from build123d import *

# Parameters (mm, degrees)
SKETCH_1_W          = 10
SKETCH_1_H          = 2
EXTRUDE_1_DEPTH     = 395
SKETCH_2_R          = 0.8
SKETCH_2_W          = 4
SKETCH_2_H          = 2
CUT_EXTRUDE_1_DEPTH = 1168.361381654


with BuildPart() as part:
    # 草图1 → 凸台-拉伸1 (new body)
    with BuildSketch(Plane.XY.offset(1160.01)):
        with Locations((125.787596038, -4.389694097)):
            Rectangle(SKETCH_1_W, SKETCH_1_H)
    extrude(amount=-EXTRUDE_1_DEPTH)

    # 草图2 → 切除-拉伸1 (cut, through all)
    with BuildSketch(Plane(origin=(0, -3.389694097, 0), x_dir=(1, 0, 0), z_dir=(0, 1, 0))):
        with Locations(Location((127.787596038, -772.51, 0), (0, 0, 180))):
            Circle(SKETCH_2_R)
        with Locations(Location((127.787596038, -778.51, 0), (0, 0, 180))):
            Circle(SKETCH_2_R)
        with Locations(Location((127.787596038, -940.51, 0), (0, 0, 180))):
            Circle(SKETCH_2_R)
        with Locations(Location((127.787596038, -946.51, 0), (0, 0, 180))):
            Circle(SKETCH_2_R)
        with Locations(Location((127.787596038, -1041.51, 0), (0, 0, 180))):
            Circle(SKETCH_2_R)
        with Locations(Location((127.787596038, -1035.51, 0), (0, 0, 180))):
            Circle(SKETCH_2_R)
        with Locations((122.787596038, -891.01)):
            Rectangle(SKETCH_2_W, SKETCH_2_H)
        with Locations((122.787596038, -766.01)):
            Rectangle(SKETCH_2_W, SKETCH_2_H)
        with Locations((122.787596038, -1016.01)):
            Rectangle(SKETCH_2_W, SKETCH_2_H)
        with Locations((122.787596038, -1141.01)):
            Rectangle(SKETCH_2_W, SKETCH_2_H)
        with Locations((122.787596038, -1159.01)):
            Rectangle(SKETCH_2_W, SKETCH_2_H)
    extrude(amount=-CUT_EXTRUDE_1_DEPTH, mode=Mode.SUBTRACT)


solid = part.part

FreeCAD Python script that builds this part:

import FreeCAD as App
import Part
import Sketcher
Q = App.Units.Quantity


def add_polygon(sketch, points):
    """Adds a closed chain of lines whose ends are joined by coincident constraints."""
    first, n = sketch.GeometryCount, len(points)
    for a, b in zip(points, points[1:] + points[:1]):
        sketch.addGeometry(Part.LineSegment(App.Vector(*a, 0), App.Vector(*b, 0)), False)
    for i in range(n):
        sketch.addConstraint(Sketcher.Constraint("Coincident", first + i, 2, first + (i + 1) % n, 1))

doc = App.newDocument("Part")
body = doc.addObject("PartDesign::Body", "Body")

sketch1 = doc.addObject("Sketcher::SketchObject", "Sketch")
body.addObject(sketch1)
sketch1.AttachmentSupport = (doc.XY_Plane, [""])
sketch1.MapMode = "FlatFace"
sketch1.AttachmentOffset = App.Placement(App.Vector(0, 0, 1160.01), App.Rotation())
add_polygon(sketch1, [(120.8, -3.4), (120.8, -5.4), (130.8, -5.4), (130.8, -3.4)])
sketch1.addConstraint(Sketcher.Constraint("Vertical", 0))
sketch1.addConstraint(Sketcher.Constraint("Horizontal", 1))
sketch1.addConstraint(Sketcher.Constraint("Vertical", 2))
sketch1.addConstraint(Sketcher.Constraint("Horizontal", 3))
sketch1.addConstraint(Sketcher.Constraint("DistanceX", 1, 1, 1, 2, Q("10 mm")))
sketch1.addConstraint(Sketcher.Constraint("DistanceY", 0, 2, 0, 1, Q("2 mm")))
sketch1.addConstraint(Sketcher.Constraint("DistanceX", -1, 1, 0, 2, Q("120.787596 mm")))
sketch1.addConstraint(Sketcher.Constraint("DistanceY", 0, 2, -1, 1, Q("5.389694 mm")))
pad1 = doc.addObject("PartDesign::Pad", "Pad")
body.addObject(pad1)
pad1.Profile = sketch1
pad1.Length = 395
pad1.Reversed = True

sketch2 = doc.addObject("Sketcher::SketchObject", "Sketch001")
body.addObject(sketch2)
sketch2.AttachmentSupport = (doc.XZ_Plane, [""])
sketch2.MapMode = "FlatFace"
sketch2.AttachmentOffset = App.Placement(App.Vector(0, 0, 3.389694), App.Rotation())
sketch2.addGeometry(Part.Circle(App.Vector(127.8, 772.5, 0), App.Vector(0, 0, 1), 0.8), False)
sketch2.addGeometry(Part.Circle(App.Vector(127.8, 778.5, 0), App.Vector(0, 0, 1), 0.8), False)
sketch2.addGeometry(Part.Circle(App.Vector(127.8, 940.5, 0), App.Vector(0, 0, 1), 0.8), False)
sketch2.addGeometry(Part.Circle(App.Vector(127.8, 946.5, 0), App.Vector(0, 0, 1), 0.8), False)
sketch2.addGeometry(Part.Circle(App.Vector(127.8, 1041.5, 0), App.Vector(0, 0, 1), 0.8), False)
sketch2.addGeometry(Part.Circle(App.Vector(127.8, 1035.5, 0), App.Vector(0, 0, 1), 0.8), False)
add_polygon(sketch2, [(120.8, 890), (120.8, 892), (124.8, 892), (124.8, 890)])
add_polygon(sketch2, [(120.8, 765), (120.8, 767), (124.8, 767), (124.8, 765)])
add_polygon(sketch2, [(120.8, 1015), (120.8, 1017), (124.8, 1017), (124.8, 1015)])
add_polygon(sketch2, [(120.8, 1140), (120.8, 1142), (124.8, 1142), (124.8, 1140)])
add_polygon(sketch2, [(120.8, 1158), (120.8, 1160), (124.8, 1160), (124.8, 1158)])
sketch2.addConstraint(Sketcher.Constraint("Vertical", 6))
sketch2.addConstraint(Sketcher.Constraint("Horizontal", 7))
sketch2.addConstraint(Sketcher.Constraint("Vertical", 8))
sketch2.addConstraint(Sketcher.Constraint("Horizontal", 9))
sketch2.addConstraint(Sketcher.Constraint("Vertical", 10))
sketch2.addConstraint(Sketcher.Constraint("Horizontal", 11))
sketch2.addConstraint(Sketcher.Constraint("Vertical", 12))
sketch2.addConstraint(Sketcher.Constraint("Horizontal", 13))
sketch2.addConstraint(Sketcher.Constraint("Vertical", 14))
sketch2.addConstraint(Sketcher.Constraint("Horizontal", 15))
sketch2.addConstraint(Sketcher.Constraint("Vertical", 16))
sketch2.addConstraint(Sketcher.Constraint("Horizontal", 17))
sketch2.addConstraint(Sketcher.Constraint("Vertical", 18))
sketch2.addConstraint(Sketcher.Constraint("Horizontal", 19))
sketch2.addConstraint(Sketcher.Constraint("Vertical", 20))
sketch2.addConstraint(Sketcher.Constraint("Horizontal", 21))
sketch2.addConstraint(Sketcher.Constraint("Vertical", 22))
sketch2.addConstraint(Sketcher.Constraint("Horizontal", 23))
sketch2.addConstraint(Sketcher.Constraint("Vertical", 24))
sketch2.addConstraint(Sketcher.Constraint("Horizontal", 25))
sketch2.addConstraint(Sketcher.Constraint("Equal", 0, 1))
sketch2.addConstraint(Sketcher.Constraint("Equal", 1, 2))
sketch2.addConstraint(Sketcher.Constraint("Equal", 2, 3))
sketch2.addConstraint(Sketcher.Constraint("Equal", 3, 4))
sketch2.addConstraint(Sketcher.Constraint("Equal", 4, 5))
sketch2.addConstraint(Sketcher.Constraint("Vertical", 0, 3, 1, 3))
sketch2.addConstraint(Sketcher.Constraint("Vertical", 1, 3, 2, 3))
sketch2.addConstraint(Sketcher.Constraint("Vertical", 2, 3, 3, 3))
sketch2.addConstraint(Sketcher.Constraint("Vertical", 3, 3, 4, 3))
sketch2.addConstraint(Sketcher.Constraint("Vertical", 4, 3, 5, 3))
sketch2.addConstraint(Sketcher.Constraint("Vertical", 9, 2, 10, 2))
sketch2.addConstraint(Sketcher.Constraint("Vertical", 8, 2, 11, 2))
sketch2.addConstraint(Sketcher.Constraint("Vertical", 13, 2, 14, 2))
sketch2.addConstraint(Sketcher.Constraint("Vertical", 12, 2, 15, 2))
sketch2.addConstraint(Sketcher.Constraint("Vertical", 17, 2, 18, 2))
sketch2.addConstraint(Sketcher.Constraint("Vertical", 16, 2, 19, 2))
sketch2.addConstraint(Sketcher.Constraint("Vertical", 21, 2, 22, 2))
sketch2.addConstraint(Sketcher.Constraint("Vertical", 20, 2, 23, 2))
sketch2.addConstraint(Sketcher.Constraint("Equal", 8, 10))
sketch2.addConstraint(Sketcher.Constraint("Equal", 12, 14))
sketch2.addConstraint(Sketcher.Constraint("Equal", 16, 18))
sketch2.addConstraint(Sketcher.Constraint("Equal", 20, 22))
sketch2.addConstraint(Sketcher.Constraint("Diameter", 0, Q("1.6 mm")))
sketch2.addConstraint(Sketcher.Constraint("DistanceX", 7, 1, 7, 2, Q("4 mm")))
sketch2.addConstraint(Sketcher.Constraint("DistanceY", 6, 1, 6, 2, Q("2 mm")))
sketch2.addConstraint(Sketcher.Constraint("DistanceY", 0, 3, 1, 3, Q("6 mm")))
sketch2.addConstraint(Sketcher.Constraint("DistanceY", 1, 3, 2, 3, Q("162 mm")))
sketch2.addConstraint(Sketcher.Constraint("DistanceY", 2, 3, 3, 3, Q("6 mm")))
sketch2.addConstraint(Sketcher.Constraint("DistanceY", 3, 3, 4, 3, Q("95 mm")))
sketch2.addConstraint(Sketcher.Constraint("DistanceY", 5, 3, 4, 3, Q("6 mm")))
sketch2.addConstraint(Sketcher.Constraint("DistanceX", 6, 2, 2, 3, Q("7 mm")))
sketch2.addConstraint(Sketcher.Constraint("DistanceY", 10, 2, 9, 2, Q("123 mm")))
sketch2.addConstraint(Sketcher.Constraint("DistanceY", 6, 2, 14, 2, Q("125 mm")))
sketch2.addConstraint(Sketcher.Constraint("DistanceY", 14, 2, 18, 2, Q("125 mm")))
sketch2.addConstraint(Sketcher.Constraint("DistanceY", 18, 2, 22, 2, Q("18 mm")))
sketch2.addConstraint(Sketcher.Constraint("DistanceY", 6, 2, 2, 3, Q("48.5 mm")))
sketch2.addConstraint(Sketcher.Constraint("DistanceY", -1, 1, 0, 3, Q("772.51 mm")))
sketch2.addConstraint(Sketcher.Constraint("DistanceX", -1, 1, 0, 3, Q("127.787596 mm")))
pocket1 = doc.addObject("PartDesign::Pocket", "Pocket")
body.addObject(pocket1)
pocket1.Profile = sketch2
pocket1.Type = "ThroughAll"
pocket1.Reversed = True

doc.recompute()
